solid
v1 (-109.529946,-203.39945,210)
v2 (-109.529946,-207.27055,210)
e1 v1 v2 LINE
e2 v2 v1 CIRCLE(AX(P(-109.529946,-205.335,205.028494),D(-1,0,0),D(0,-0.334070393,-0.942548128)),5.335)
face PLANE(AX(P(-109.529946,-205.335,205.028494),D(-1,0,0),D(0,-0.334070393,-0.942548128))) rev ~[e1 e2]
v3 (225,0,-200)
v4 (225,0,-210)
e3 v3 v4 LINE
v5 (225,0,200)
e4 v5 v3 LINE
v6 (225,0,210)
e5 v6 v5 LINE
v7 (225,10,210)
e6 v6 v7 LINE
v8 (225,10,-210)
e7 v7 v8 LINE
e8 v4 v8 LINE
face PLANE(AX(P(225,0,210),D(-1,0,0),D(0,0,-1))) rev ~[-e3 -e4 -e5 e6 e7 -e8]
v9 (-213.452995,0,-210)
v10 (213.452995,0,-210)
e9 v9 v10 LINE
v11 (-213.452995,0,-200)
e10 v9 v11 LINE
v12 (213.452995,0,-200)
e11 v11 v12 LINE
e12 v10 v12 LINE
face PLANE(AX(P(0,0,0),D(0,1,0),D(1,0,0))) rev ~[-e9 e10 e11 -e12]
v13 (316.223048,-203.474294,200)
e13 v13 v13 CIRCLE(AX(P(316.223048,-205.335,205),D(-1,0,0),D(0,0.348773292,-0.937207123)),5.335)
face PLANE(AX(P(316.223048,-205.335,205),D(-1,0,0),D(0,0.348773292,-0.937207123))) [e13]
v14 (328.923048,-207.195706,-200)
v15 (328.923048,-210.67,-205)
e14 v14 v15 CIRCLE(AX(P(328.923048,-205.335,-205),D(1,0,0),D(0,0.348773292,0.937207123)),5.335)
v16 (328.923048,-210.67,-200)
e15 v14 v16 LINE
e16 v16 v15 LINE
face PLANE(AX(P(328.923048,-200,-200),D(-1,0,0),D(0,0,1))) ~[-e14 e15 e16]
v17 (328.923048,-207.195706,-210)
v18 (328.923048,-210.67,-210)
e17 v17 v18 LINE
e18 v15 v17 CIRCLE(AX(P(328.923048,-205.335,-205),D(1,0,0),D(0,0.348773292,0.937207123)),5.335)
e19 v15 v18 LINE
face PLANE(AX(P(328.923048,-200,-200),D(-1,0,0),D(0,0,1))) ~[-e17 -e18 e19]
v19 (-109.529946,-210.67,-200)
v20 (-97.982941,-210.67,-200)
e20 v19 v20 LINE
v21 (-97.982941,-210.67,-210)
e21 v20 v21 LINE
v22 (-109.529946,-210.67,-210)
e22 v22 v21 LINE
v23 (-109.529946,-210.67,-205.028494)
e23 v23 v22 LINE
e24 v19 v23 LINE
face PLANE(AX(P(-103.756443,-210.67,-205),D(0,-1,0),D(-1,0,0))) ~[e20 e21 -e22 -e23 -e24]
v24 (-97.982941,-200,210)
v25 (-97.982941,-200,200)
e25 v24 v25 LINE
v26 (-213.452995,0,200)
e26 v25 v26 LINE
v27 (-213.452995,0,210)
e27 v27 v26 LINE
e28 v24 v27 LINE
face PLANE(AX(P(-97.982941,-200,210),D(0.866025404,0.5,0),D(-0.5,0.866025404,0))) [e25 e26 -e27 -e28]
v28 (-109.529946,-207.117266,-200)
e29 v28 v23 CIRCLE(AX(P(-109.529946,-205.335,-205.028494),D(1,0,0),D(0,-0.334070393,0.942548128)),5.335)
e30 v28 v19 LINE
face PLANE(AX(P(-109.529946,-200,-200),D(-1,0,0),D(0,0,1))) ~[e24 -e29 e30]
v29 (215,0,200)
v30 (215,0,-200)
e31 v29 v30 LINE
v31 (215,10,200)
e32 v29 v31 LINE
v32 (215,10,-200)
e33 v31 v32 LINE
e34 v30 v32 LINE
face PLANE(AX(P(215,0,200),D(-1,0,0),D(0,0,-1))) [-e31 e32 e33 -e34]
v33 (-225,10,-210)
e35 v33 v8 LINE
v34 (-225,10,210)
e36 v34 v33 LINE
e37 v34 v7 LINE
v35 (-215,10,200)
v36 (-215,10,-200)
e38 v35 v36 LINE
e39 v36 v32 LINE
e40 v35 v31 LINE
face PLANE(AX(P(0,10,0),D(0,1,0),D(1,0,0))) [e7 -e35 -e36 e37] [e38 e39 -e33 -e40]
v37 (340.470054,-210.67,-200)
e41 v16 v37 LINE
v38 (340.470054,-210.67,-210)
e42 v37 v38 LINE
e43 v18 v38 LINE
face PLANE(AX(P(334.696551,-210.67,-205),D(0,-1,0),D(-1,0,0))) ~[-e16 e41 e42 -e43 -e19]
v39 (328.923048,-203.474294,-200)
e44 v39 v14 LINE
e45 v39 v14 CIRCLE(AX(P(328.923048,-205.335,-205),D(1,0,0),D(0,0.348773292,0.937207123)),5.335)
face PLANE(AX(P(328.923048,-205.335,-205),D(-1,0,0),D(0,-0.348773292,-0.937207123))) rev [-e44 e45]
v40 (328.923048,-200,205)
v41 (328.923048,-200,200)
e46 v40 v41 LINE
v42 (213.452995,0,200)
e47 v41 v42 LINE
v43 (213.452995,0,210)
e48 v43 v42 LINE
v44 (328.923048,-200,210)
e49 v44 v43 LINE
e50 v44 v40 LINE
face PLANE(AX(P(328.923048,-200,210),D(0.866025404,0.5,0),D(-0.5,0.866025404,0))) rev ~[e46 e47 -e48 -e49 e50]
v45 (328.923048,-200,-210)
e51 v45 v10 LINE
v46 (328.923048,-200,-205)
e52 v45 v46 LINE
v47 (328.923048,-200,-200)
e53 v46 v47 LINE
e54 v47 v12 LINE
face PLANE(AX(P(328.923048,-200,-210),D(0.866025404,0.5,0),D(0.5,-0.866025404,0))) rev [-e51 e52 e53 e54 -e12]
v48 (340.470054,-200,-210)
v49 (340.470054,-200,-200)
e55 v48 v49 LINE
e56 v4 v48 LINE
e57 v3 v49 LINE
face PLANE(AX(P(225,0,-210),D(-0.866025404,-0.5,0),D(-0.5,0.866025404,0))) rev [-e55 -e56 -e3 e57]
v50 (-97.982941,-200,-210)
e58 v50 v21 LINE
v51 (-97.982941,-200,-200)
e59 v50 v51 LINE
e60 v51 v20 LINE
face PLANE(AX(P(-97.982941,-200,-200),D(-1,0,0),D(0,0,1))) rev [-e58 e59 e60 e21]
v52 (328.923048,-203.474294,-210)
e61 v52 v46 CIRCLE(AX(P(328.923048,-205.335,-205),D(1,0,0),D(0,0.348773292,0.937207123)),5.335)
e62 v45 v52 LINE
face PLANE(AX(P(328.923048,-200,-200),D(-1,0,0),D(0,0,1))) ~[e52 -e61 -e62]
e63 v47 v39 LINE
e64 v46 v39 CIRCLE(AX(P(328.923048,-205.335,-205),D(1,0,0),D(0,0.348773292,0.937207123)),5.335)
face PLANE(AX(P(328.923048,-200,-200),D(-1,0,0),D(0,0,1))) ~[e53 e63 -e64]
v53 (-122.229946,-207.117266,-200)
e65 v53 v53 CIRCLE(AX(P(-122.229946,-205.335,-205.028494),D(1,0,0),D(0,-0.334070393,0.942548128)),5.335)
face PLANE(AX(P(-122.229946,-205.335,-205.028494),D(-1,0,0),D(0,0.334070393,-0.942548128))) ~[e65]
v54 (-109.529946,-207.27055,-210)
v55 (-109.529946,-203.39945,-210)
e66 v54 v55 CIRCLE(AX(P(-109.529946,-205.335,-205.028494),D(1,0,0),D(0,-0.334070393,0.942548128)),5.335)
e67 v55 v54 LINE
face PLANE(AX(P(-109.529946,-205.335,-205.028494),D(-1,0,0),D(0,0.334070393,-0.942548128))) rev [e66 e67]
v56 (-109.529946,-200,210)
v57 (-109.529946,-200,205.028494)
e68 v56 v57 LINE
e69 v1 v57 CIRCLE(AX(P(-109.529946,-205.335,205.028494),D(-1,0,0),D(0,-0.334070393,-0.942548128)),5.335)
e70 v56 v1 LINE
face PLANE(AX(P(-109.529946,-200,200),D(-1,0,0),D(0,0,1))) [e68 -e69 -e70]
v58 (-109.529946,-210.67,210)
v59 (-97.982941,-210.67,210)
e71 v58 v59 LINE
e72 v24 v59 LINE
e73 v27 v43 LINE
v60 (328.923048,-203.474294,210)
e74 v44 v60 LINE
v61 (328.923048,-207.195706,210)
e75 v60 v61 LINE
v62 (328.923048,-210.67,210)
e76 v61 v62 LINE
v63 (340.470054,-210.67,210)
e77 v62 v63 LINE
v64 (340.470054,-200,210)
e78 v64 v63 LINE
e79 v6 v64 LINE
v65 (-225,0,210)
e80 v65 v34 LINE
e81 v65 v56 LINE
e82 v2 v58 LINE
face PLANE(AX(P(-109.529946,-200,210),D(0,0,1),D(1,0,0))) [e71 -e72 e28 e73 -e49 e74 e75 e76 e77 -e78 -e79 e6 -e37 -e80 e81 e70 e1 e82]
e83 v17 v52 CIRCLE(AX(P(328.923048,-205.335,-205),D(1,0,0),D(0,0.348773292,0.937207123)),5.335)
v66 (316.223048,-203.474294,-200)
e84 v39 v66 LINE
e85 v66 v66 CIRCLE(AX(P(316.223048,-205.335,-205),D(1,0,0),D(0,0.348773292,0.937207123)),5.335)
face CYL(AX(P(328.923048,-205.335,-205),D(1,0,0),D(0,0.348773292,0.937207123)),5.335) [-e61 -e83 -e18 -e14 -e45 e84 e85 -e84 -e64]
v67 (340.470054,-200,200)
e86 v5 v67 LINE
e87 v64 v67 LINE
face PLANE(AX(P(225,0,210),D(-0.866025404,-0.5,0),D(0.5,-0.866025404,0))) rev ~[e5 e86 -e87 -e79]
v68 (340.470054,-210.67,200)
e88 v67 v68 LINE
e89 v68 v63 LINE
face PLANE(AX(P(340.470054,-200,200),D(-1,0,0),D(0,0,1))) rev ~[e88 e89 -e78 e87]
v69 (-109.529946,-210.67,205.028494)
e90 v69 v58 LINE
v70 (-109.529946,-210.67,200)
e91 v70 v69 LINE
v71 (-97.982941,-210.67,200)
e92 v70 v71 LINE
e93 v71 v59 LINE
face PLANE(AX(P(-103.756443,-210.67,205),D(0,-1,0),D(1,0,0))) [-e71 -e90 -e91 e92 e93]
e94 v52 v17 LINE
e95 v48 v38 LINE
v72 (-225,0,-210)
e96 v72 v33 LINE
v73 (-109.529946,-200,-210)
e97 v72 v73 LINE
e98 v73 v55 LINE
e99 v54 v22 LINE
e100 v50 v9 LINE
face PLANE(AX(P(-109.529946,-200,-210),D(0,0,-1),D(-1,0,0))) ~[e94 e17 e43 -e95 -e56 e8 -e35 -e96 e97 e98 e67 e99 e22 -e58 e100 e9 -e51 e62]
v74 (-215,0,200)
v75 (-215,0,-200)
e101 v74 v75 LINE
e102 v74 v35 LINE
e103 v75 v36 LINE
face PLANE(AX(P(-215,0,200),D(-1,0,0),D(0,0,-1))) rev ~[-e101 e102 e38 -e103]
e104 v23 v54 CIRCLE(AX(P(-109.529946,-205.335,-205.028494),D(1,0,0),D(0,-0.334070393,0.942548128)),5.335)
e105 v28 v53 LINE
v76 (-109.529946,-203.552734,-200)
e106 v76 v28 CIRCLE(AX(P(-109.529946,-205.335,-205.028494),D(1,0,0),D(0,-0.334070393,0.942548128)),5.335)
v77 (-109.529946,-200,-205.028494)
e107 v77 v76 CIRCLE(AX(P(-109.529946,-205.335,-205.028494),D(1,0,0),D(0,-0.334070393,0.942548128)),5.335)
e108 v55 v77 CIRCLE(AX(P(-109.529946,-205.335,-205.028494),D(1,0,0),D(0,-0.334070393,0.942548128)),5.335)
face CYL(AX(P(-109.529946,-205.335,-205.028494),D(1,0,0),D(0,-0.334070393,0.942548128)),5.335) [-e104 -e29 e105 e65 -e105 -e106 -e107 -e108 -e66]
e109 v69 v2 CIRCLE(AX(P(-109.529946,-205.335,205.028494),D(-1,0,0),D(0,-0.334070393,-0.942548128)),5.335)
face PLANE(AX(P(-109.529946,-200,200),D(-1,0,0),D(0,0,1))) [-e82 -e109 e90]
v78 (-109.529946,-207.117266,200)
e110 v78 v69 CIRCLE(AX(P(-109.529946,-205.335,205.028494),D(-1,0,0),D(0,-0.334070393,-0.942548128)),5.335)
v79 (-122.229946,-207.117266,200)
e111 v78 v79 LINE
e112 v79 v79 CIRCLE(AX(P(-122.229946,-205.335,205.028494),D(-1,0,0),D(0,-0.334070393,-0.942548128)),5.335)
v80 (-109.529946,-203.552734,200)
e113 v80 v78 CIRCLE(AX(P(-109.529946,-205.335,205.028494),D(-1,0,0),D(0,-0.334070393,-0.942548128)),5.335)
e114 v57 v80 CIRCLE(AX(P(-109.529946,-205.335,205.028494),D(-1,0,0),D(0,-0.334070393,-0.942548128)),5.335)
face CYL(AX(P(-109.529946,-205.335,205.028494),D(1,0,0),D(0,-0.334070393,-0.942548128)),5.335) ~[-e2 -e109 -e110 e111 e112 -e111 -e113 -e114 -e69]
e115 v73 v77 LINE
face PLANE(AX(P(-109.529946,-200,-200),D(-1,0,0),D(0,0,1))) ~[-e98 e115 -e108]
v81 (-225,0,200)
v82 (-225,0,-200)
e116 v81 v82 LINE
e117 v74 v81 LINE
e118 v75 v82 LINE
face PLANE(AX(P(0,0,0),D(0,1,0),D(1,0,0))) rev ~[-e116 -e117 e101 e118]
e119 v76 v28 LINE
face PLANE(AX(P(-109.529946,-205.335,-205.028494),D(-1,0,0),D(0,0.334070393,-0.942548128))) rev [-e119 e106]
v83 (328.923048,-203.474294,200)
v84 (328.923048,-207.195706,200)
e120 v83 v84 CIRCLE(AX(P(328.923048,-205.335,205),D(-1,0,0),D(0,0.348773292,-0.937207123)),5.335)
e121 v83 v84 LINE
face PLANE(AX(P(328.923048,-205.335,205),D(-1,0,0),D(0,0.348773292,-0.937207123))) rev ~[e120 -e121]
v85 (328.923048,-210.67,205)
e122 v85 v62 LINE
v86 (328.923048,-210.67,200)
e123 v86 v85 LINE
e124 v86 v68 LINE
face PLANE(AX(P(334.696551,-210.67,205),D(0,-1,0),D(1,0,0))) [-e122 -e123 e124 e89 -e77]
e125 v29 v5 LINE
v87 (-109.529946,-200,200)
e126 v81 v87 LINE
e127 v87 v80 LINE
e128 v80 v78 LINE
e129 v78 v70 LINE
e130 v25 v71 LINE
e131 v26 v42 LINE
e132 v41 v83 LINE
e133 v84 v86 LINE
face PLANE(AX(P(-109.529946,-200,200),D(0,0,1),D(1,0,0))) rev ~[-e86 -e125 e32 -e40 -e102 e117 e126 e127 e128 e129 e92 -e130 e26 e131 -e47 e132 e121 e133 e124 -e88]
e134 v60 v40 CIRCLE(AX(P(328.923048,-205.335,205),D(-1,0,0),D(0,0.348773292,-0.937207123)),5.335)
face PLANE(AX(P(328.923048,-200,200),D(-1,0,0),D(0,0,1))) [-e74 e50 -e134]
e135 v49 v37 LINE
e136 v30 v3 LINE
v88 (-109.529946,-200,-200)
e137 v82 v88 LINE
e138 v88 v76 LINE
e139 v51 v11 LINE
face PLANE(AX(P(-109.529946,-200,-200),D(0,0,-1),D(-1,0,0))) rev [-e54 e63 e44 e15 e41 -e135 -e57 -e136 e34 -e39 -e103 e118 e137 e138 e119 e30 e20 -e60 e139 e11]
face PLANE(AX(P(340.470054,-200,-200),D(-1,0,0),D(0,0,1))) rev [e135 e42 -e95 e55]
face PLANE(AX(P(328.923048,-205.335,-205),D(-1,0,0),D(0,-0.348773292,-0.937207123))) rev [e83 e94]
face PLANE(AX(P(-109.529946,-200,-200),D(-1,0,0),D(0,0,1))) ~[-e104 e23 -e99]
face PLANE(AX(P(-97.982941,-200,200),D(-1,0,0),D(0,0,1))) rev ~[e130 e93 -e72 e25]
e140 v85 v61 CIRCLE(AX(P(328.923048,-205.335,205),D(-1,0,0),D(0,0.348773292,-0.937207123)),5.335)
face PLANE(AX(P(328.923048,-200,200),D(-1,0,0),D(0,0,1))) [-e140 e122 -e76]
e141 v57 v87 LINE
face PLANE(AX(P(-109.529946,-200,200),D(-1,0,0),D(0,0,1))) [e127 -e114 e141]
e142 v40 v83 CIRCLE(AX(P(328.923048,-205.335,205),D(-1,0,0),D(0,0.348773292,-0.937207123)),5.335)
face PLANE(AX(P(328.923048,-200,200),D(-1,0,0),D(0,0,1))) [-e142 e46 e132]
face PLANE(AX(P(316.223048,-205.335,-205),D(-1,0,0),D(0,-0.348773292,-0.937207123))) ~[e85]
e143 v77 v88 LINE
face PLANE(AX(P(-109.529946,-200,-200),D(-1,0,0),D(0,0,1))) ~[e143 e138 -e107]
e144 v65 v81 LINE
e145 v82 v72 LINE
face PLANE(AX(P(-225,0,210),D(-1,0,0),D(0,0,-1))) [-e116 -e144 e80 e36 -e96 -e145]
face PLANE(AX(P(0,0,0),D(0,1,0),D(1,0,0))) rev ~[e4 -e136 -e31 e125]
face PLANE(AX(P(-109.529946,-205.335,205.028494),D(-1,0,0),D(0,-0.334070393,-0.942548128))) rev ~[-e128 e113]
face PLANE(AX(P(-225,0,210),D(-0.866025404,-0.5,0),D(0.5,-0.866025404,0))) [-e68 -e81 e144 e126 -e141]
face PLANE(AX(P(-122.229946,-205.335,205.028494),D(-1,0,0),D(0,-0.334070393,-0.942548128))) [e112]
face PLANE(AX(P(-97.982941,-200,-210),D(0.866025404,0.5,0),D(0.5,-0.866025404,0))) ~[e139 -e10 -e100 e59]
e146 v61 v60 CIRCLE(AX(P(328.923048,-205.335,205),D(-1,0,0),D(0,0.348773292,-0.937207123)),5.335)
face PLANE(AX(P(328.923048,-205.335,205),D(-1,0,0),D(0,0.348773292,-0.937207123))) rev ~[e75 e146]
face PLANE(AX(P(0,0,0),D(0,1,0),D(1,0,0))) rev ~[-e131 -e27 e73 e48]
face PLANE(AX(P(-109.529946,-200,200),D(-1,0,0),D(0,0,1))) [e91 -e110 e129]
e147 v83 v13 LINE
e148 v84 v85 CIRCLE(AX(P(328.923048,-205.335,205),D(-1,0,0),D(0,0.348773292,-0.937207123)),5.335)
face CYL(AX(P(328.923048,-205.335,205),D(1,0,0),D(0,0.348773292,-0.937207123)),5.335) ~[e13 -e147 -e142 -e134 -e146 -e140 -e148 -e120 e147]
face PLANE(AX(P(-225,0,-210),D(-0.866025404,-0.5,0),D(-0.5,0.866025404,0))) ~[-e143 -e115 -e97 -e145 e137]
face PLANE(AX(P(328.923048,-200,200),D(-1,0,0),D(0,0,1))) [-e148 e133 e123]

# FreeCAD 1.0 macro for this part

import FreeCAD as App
import Part
import Sketcher
from FreeCAD import Vector
Q = App.Units.Quantity

doc = App.newDocument("Part")
body = doc.addObject("PartDesign::Body", "Body")

sketch1 = body.newObject("Sketcher::SketchObject", "Sketch")
sketch1.AttachmentSupport = (doc.getObject("XZ_Plane"), [""])
sketch1.MapMode = "FlatFace"
sketch1.addGeometry([
    Part.LineSegment(Vector(-225, -210, 0), Vector(-225, 210, 0)),
    Part.LineSegment(Vector(-225, 210, 0), Vector(225, 210, 0)),
    Part.LineSegment(Vector(225, 210, 0), Vector(225, -210, 0)),
    Part.LineSegment(Vector(225, -210, 0), Vector(-225, -210, 0)),
    Part.LineSegment(Vector(215, 200, 0), Vector(-215, 200, 0)),
    Part.LineSegment(Vector(-215, 200, 0), Vector(-215, -200, 0)),
    Part.LineSegment(Vector(-215, -200, 0), Vector(215, -200, 0)),
    Part.LineSegment(Vector(215, -200, 0), Vector(215, 200, 0)),
], False)
sketch1.addConstraint([
    Sketcher.Constraint("Coincident", 0, 2, 1, 1),
    Sketcher.Constraint("Coincident", 1, 2, 2, 1),
    Sketcher.Constraint("Coincident", 2, 2, 3, 1),
    Sketcher.Constraint("Coincident", 3, 2, 0, 1),
    Sketcher.Constraint("Coincident", 4, 2, 5, 1),
    Sketcher.Constraint("Coincident", 5, 2, 6, 1),
    Sketcher.Constraint("Coincident", 6, 2, 7, 1),
    Sketcher.Constraint("Coincident", 7, 2, 4, 1),
    Sketcher.Constraint("Vertical", 0),
    Sketcher.Constraint("Horizontal", 1),
    Sketcher.Constraint("Vertical", 2),
    Sketcher.Constraint("Horizontal", 3),
    Sketcher.Constraint("Horizontal", 4),
    Sketcher.Constraint("Vertical", 5),
    Sketcher.Constraint("Horizontal", 6),
    Sketcher.Constraint("Vertical", 7),
    Sketcher.Constraint("Symmetric", 0, 2, 2, 2, -1, 1),
    Sketcher.Constraint("Symmetric", 4, 2, 6, 2, -1, 1),
    Sketcher.Constraint("DistanceX", 1, 1, 1, 2, Q("450 mm")),
    Sketcher.Constraint("DistanceX", 4, 2, 4, 1, Q("430 mm")),
    Sketcher.Constraint("DistanceY", 0, 1, 0, 2, Q("420 mm")),
    Sketcher.Constraint("DistanceY", 5, 2, 5, 1, Q("400 mm")),
])
pad1 = body.newObject("PartDesign::Pad", "Pad")
pad1.Profile = sketch1
pad1.Length = 10
pad1.Reversed = True

sketch2 = body.newObject("Sketcher::SketchObject", "Sketch001")
sketch2.AttachmentSupport = (doc.getObject("XY_Plane"), [""])
sketch2.MapMode = "FlatFace"
sketch2.AttachmentOffset = App.Placement(Vector(0, 0, 210), App.Rotation())
sketch2.addGeometry([
    Part.LineSegment(Vector(-225, 0, 0), Vector(-109.529946, -200, 0)),
    Part.LineSegment(Vector(-109.529946, -200, 0), Vector(-97.982941, -200, 0)),
    Part.LineSegment(Vector(-97.982941, -200, 0), Vector(-213.452995, 0, 0)),
    Part.LineSegment(Vector(-213.452995, 0, 0), Vector(-225, 0, 0)),
    Part.LineSegment(Vector(340.470054, -200, 0), Vector(225, 0, 0)),
    Part.LineSegment(Vector(225, 0, 0), Vector(213.452995, 0, 0)),
    Part.LineSegment(Vector(213.452995, 0, 0), Vector(328.923048, -200, 0)),
    Part.LineSegment(Vector(328.923048, -200, 0), Vector(340.470054, -200, 0)),
], False)
sketch2.addConstraint([
    Sketcher.Constraint("Coincident", 0, 2, 1, 1),
    Sketcher.Constraint("Coincident", 1, 2, 2, 1),
    Sketcher.Constraint("Coincident", 2, 2, 3, 1),
    Sketcher.Constraint("Coincident", 3, 2, 0, 1),
    Sketcher.Constraint("Coincident", 4, 2, 5, 1),
    Sketcher.Constraint("Coincident", 5, 2, 6, 1),
    Sketcher.Constraint("Coincident", 6, 2, 7, 1),
    Sketcher.Constraint("Coincident", 7, 2, 4, 1),
    Sketcher.Constraint("Horizontal", 1),
    Sketcher.Constraint("Horizontal", 3),
    Sketcher.Constraint("Horizontal", 5),
    Sketcher.Constraint("Horizontal", 7),
    Sketcher.Constraint("Symmetric", 3, 2, 4, 2, -1, 1),
    Sketcher.Constraint("Symmetric", 2, 2, 5, 2, -2),
    Sketcher.Constraint("Parallel", 0, 2),
    Sketcher.Constraint("Parallel", 2, 4),
    Sketcher.Constraint("Parallel", 4, 6),
    Sketcher.Constraint("Horizontal", 1, 2, 6, 2),
    Sketcher.Constraint("Angle", 0, Q("-60 deg")),
    Sketcher.Constraint("DistanceY", 0, 2, -1, 1, Q("200 mm")),
    Sketcher.Constraint("DistanceX", 3, 2, -1, 1, Q("225 mm")),
    Sketcher.Constraint("DistanceX", 1, 1, 1, 2, Q("11.547005 mm")),
])
pad2 = body.newObject("PartDesign::Pad", "Pad001")
pad2.Profile = sketch2
pad2.Length = 10
pad2.Reversed = True
doc.recompute()

mirrored = body.newObject("PartDesign::Mirrored", "Mirrored")
mirrored.Originals = [pad2]
mirrored.MirrorPlane = (doc.getObject("XY_Plane"), [""])
body.Tip = mirrored

sketch3 = body.newObject("Sketcher::SketchObject", "Sketch002")
sketch3.AttachmentSupport = (doc.getObject("XZ_Plane"), [""])
sketch3.MapMode = "FlatFace"
sketch3.AttachmentOffset = App.Placement(Vector(0, 0, 200), App.Rotation())
sketch3.addGeometry([
    Part.LineSegment(Vector(-109.529946, 210, 0), Vector(-109.529946, 200, 0)),
    Part.LineSegment(Vector(-109.529946, 200, 0), Vector(-97.982941, 200, 0)),
    Part.LineSegment(Vector(-97.982941, 200, 0), Vector(-97.982941, 210, 0)),
    Part.LineSegment(Vector(-97.982941, 210, 0), Vector(-109.529946, 210, 0)),
    Part.LineSegment(Vector(328.923048, 210, 0), Vector(328.923048, 200, 0)),
    Part.LineSegment(Vector(328.923048, 200, 0), Vector(340.470054, 200, 0)),
    Part.LineSegment(Vector(340.470054, 200, 0), Vector(340.470054, 210, 0)),
    Part.LineSegment(Vector(340.470054, 210, 0), Vector(328.923048, 210, 0)),
], False)
sketch3.addConstraint([
    Sketcher.Constraint("Coincident", 0, 2, 1, 1),
    Sketcher.Constraint("Coincident", 1, 2, 2, 1),
    Sketcher.Constraint("Coincident", 2, 2, 3, 1),
    Sketcher.Constraint("Coincident", 3, 2, 0, 1),
    Sketcher.Constraint("Coincident", 4, 2, 5, 1),
    Sketcher.Constraint("Coincident", 5, 2, 6, 1),
    Sketcher.Constraint("Coincident", 6, 2, 7, 1),
    Sketcher.Constraint("Coincident", 7, 2, 4, 1),
    Sketcher.Constraint("Vertical", 0),
    Sketcher.Constraint("Horizontal", 1),
    Sketcher.Constraint("Vertical", 2),
    Sketcher.Constraint("Horizontal", 3),
    Sketcher.Constraint("Vertical", 4),
    Sketcher.Constraint("Horizontal", 5),
    Sketcher.Constraint("Vertical", 6),
    Sketcher.Constraint("Horizontal", 7),
    Sketcher.Constraint("Horizontal", 1, 2, 4, 2),
    Sketcher.Constraint("Horizontal", 3, 2, 6, 2),
    Sketcher.Constraint("Equal", 3, 5),
    Sketcher.Constraint("DistanceY", 0, 2, 0, 1, Q("10 mm")),
    Sketcher.Constraint("DistanceY", -1, 1, 0, 2, Q("200 mm")),
    Sketcher.Constraint("DistanceX", 0, 2, 5, 2, Q("450 mm")),
    Sketcher.Constraint("DistanceX", 1, 1, 1, 2, Q("11.547005 mm")),
    Sketcher.Constraint("DistanceX", 1, 2, -1, 1, Q("97.982941 mm")),
])
pad3 = body.newObject("PartDesign::Pad", "Pad002")
pad3.Profile = sketch3
pad3.Length = 10.67
doc.recompute()

mirrored2 = body.newObject("PartDesign::Mirrored", "Mirrored001")
mirrored2.Originals = [pad3]
mirrored2.MirrorPlane = (doc.getObject("XY_Plane"), [""])
body.Tip = mirrored2

sketch4 = body.newObject("Sketcher::SketchObject", "Sketch003")
sketch4.AttachmentSupport = (doc.getObject("YZ_Plane"), [""])
sketch4.MapMode = "FlatFace"
sketch4.AttachmentOffset = App.Placement(Vector(0, 0, -109.529946), App.Rotation())
sketch4.addGeometry(Part.Circle(Vector(-205.335, 205.028494, 0), Vector(0, 0, 1), 5.335), False)
sketch4.addConstraint([
    Sketcher.Constraint("Diameter", 0, Q("10.67 mm")),
    Sketcher.Constraint("DistanceX", 0, 3, -1, 1, Q("205.335 mm")),
    Sketcher.Constraint("DistanceY", -1, 1, 0, 3, Q("205.028494 mm")),
])
pad4 = body.newObject("PartDesign::Pad", "Pad003")
pad4.Profile = sketch4
pad4.Length = 12.7
pad4.Reversed = True

sketch5 = body.newObject("Sketcher::SketchObject", "Sketch004")
sketch5.AttachmentSupport = (doc.getObject("YZ_Plane"), [""])
sketch5.MapMode = "FlatFace"
sketch5.AttachmentOffset = App.Placement(Vector(0, 0, 328.923048), App.Rotation())
sketch5.addGeometry(Part.Circle(Vector(-205.335, 205, 0), Vector(0, 0, 1), 5.335), False)
sketch5.addConstraint([
    Sketcher.Constraint("Diameter", 0, Q("10.67 mm")),
    Sketcher.Constraint("DistanceY", -1, 1, 0, 3, Q("205 mm")),
    Sketcher.Constraint("DistanceX", 0, 3, -1, 1, Q("205.335 mm")),
])
pad5 = body.newObject("PartDesign::Pad", "Pad004")
pad5.Profile = sketch5
pad5.Length = 12.7
pad5.Reversed = True
doc.recompute()

mirrored3 = body.newObject("PartDesign::Mirrored", "Mirrored002")
mirrored3.Originals = [pad4, pad5]
mirrored3.MirrorPlane = (doc.getObject("XY_Plane"), [""])
body.Tip = mirrored3

doc.recompute()
